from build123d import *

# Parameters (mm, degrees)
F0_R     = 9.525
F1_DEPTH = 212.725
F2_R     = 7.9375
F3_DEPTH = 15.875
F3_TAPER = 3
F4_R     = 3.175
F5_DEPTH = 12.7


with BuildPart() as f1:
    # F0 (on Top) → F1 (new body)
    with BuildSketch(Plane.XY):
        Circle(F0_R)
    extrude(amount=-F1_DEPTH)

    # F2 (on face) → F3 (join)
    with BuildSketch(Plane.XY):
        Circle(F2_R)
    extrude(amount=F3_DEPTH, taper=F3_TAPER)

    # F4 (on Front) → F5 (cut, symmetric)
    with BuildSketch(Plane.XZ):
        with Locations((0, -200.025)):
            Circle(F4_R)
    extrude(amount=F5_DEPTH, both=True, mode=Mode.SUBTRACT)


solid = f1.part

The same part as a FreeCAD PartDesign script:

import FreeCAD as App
import Part
import Sketcher

V = App.Vector
Q = App.Units.Quantity

doc = App.newDocument("Part")
body = doc.addObject("PartDesign::Body", "Body")

sketch1 = body.newObject("Sketcher::SketchObject", "Sketch")
sketch1.AttachmentSupport = (doc.getObject("XY_Plane"), [""])
sketch1.MapMode = "FlatFace"
sketch1.addGeometry(Part.Circle(V(0, 0, 0), V(0, 0, 1), 10), False)
sketch1.addConstraint([
    Sketcher.Constraint("Coincident", 0, 3, -1, 1),
    Sketcher.Constraint("Diameter", 0, Q("0.75 in")),
])
pad1 = body.newObject("PartDesign::Pad", "Pad")
pad1.Profile = sketch1
pad1.Length = Q("8.375 in")
pad1.Reversed = True

sketch2 = body.newObject("Sketcher::SketchObject", "Sketch001")
sketch2.AttachmentSupport = (doc.getObject("XY_Plane"), [""])
sketch2.MapMode = "FlatFace"
sketch2.addGeometry(Part.Circle(V(0, 0, 0), V(0, 0, 1), 8), False)
sketch2.addConstraint([
    Sketcher.Constraint("Coincident", 0, 3, -1, 1),
    Sketcher.Constraint("Diameter", 0, Q("0.625 in")),
])
pad2 = body.newObject("PartDesign::Pad", "Pad001")
pad2.Profile = sketch2
pad2.Length = Q("0.625 in")
pad2.TaperAngle = -3

sketch3 = body.newObject("Sketcher::SketchObject", "Sketch002")
sketch3.AttachmentSupport = (doc.getObject("XZ_Plane"), [""])
sketch3.MapMode = "FlatFace"
sketch3.addGeometry(Part.Circle(V(0, -200, 0), V(0, 0, 1), 3.2), False)
sketch3.addConstraint([
    Sketcher.Constraint("PointOnObject", 0, 3, -2),
    Sketcher.Constraint("Diameter", 0, Q("0.25 in")),
    Sketcher.Constraint("DistanceY", 0, 3, -1, 1, Q("7.875 in")),
])
pocket1 = body.newObject("PartDesign::Pocket", "Pocket")
pocket1.Profile = sketch3
pocket1.Length = Q("1 in")
pocket1.Midplane = True

doc.recompute()
